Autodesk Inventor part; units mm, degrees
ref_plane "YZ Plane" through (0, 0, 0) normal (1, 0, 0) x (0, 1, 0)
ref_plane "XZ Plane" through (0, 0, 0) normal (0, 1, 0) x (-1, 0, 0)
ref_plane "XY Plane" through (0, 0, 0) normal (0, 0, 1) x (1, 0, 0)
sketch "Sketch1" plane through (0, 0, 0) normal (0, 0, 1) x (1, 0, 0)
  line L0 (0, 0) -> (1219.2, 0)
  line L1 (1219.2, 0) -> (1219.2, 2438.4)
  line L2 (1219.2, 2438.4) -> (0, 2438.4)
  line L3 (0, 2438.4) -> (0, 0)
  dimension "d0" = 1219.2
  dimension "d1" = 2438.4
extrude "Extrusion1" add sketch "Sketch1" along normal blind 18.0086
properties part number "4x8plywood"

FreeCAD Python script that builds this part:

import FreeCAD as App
import Part
import Sketcher

V = App.Vector
Q = App.Units.Quantity


def add_polygon(sketch, points):
    """Adds a closed chain of lines whose ends are joined by coincident constraints."""
    first, n = sketch.GeometryCount, len(points)
    for a, b in zip(points, points[1:] + points[:1]):
        sketch.addGeometry(Part.LineSegment(App.Vector(*a, 0), App.Vector(*b, 0)), False)
    for i in range(n):
        sketch.addConstraint(Sketcher.Constraint("Coincident", first + i, 2, first + (i + 1) % n, 1))

doc = App.newDocument("Part")
body = doc.addObject("PartDesign::Body", "Body")

# Sketch on XY plane
sketch1 = doc.addObject("Sketcher::SketchObject", "Sketch")
body.addObject(sketch1)
sketch1.AttachmentSupport = (doc.XY_Plane, [""])
sketch1.MapMode = "FlatFace"
add_polygon(sketch1, [(0, 2438), (0, 0), (1219, 0), (1219, 2438)])  # lines 0-3
sketch1.addConstraint([
    Sketcher.Constraint("Vertical", 0),
    Sketcher.Constraint("Horizontal", 1),
    Sketcher.Constraint("Vertical", 2),
    Sketcher.Constraint("Horizontal", 3),
    Sketcher.Constraint("Coincident", 0, 2, -1, 1),
    Sketcher.Constraint("DistanceX", 1, 1, 1, 2, Q("48 in")),
    Sketcher.Constraint("DistanceY", 0, 2, 0, 1, Q("96 in")),
])
pad1 = doc.addObject("PartDesign::Pad", "Pad")
body.addObject(pad1)
pad1.Profile = sketch1
pad1.Length = Q("0.709 in")

doc.recompute()
